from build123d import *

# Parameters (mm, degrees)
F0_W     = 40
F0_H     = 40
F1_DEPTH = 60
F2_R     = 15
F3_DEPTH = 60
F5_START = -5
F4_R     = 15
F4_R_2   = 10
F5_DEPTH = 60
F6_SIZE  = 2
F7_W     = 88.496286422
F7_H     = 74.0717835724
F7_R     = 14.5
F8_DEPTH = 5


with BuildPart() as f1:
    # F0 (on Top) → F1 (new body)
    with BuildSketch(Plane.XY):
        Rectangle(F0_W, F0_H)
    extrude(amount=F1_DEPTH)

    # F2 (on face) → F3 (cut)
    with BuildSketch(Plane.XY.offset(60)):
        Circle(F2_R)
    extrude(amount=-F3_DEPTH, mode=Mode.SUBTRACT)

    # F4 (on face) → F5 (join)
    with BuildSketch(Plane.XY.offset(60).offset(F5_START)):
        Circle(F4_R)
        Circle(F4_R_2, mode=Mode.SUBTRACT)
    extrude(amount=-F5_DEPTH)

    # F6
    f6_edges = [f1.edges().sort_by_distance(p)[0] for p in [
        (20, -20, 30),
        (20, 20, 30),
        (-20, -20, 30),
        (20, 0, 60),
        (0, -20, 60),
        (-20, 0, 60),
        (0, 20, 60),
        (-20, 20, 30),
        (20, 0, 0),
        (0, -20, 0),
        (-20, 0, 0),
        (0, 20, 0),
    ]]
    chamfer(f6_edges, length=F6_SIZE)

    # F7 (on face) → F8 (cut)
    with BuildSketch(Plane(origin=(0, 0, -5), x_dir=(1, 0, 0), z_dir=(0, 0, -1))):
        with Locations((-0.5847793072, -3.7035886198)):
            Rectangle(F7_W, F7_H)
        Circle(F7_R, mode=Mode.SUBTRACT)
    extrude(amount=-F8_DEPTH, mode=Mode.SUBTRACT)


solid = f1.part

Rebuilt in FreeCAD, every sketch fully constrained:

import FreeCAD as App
import Part
import Sketcher

V = App.Vector


def edges_at(feature, points):
    """Names of the edges that pass closest to the given points."""
    edges = feature.Shape.Edges
    near = lambda p: min(range(len(edges)), key=lambda i: edges[i].distToShape(Part.Vertex(*p))[0])
    return sorted({f"Edge{near(p) + 1}" for p in points})

doc = App.newDocument("Part")
body = doc.addObject("PartDesign::Body", "Body")

# Sketch on XY plane
sketch1 = body.newObject("Sketcher::SketchObject", "Sketch")
sketch1.AttachmentSupport = (doc.getObject("XY_Plane"), [""])
sketch1.MapMode = "FlatFace"
sketch1.addGeometry([
    Part.LineSegment(V(-20, 20, 0), V(-20, -20, 0)),
    Part.LineSegment(V(-20, -20, 0), V(20, -20, 0)),
    Part.LineSegment(V(20, -20, 0), V(20, 20, 0)),
    Part.LineSegment(V(20, 20, 0), V(-20, 20, 0)),
], False)
sketch1.addConstraint([
    Sketcher.Constraint("Coincident", 0, 2, 1, 1),
    Sketcher.Constraint("Coincident", 1, 2, 2, 1),
    Sketcher.Constraint("Coincident", 2, 2, 3, 1),
    Sketcher.Constraint("Coincident", 3, 2, 0, 1),
    Sketcher.Constraint("Vertical", 0),
    Sketcher.Constraint("Horizontal", 1),
    Sketcher.Constraint("Vertical", 2),
    Sketcher.Constraint("Horizontal", 3),
    Sketcher.Constraint("Symmetric", 0, 2, 2, 2, -1, 1),
    Sketcher.Constraint("Equal", 3, 0),
    Sketcher.Constraint("DistanceX", 1, 1, 1, 2, 40.0),
])
pad1 = body.newObject("PartDesign::Pad", "Pad")
pad1.Profile = sketch1
pad1.Length = 60

# Sketch on XY plane
sketch2 = body.newObject("Sketcher::SketchObject", "Sketch001")
sketch2.AttachmentSupport = (doc.getObject("XY_Plane"), [""])
sketch2.MapMode = "FlatFace"
sketch2.AttachmentOffset = App.Placement(V(0, 0, 60), App.Rotation())
sketch2.addGeometry(Part.Circle(V(0, 0, 0), V(0, 0, 1), 15), False)
sketch2.addConstraint([
    Sketcher.Constraint("Coincident", 0, 3, -1, 1),
    Sketcher.Constraint("Diameter", 0, 30.0),
])
pocket1 = body.newObject("PartDesign::Pocket", "Pocket")
pocket1.Profile = sketch2
pocket1.Length = 60

# Sketch on XY plane
sketch3 = body.newObject("Sketcher::SketchObject", "Sketch002")
sketch3.AttachmentSupport = (doc.getObject("XY_Plane"), [""])
sketch3.MapMode = "FlatFace"
sketch3.AttachmentOffset = App.Placement(V(0, 0, 55), App.Rotation())
sketch3.addGeometry([
    Part.Circle(V(0, 0, 0), V(0, 0, 1), 15),
    Part.Circle(V(0, 0, 0), V(0, 0, 1), 10),
], False)
sketch3.addConstraint([
    Sketcher.Constraint("Coincident", 0, 3, -1, 1),
    Sketcher.Constraint("Coincident", 1, 3, -1, 1),
    Sketcher.Constraint("Diameter", 0, 30.0),
    Sketcher.Constraint("Diameter", 1, 20.0),
])
pad2 = body.newObject("PartDesign::Pad", "Pad001")
pad2.Profile = sketch3
pad2.Length = 60
pad2.Reversed = True
doc.recompute()

chamfer = body.newObject("PartDesign::Chamfer", "Chamfer")
chamfer.Base = (pad2, edges_at(pad2, [
    (20, -20, 30),
    (20, 20, 30),
    (-20, -20, 30),
    (20, 0, 60),
    (0, -20, 60),
    (-20, 0, 60),
    (0, 20, 60),
    (-20, 20, 30),
    (20, 0, 0),
    (0, -20, 0),
    (-20, 0, 0),
    (0, 20, 0),
]))
chamfer.Size = 2

# Sketch on XY plane
sketch4 = body.newObject("Sketcher::SketchObject", "Sketch003")
sketch4.AttachmentSupport = (doc.getObject("XY_Plane"), [""])
sketch4.MapMode = "FlatFace"
sketch4.AttachmentOffset = App.Placement(V(0, 0, -5), App.Rotation())
sketch4.addGeometry([
    Part.LineSegment(V(-45, -33, 0), V(-45, 41, 0)),  # 0
    Part.LineSegment(V(-45, 41, 0), V(44, 41, 0)),  # 1
    Part.LineSegment(V(44, 41, 0), V(44, -33, 0)),  # 2
    Part.LineSegment(V(44, -33, 0), V(-45, -33, 0)),  # 3
    Part.Circle(V(0, 0, 0), V(0, 0, 1), 14),  # 4
], False)
sketch4.addConstraint([
    Sketcher.Constraint("Coincident", 0, 2, 1, 1),
    Sketcher.Constraint("Coincident", 1, 2, 2, 1),
    Sketcher.Constraint("Coincident", 2, 2, 3, 1),
    Sketcher.Constraint("Coincident", 3, 2, 0, 1),
    Sketcher.Constraint("Vertical", 0),
    Sketcher.Constraint("Horizontal", 1),
    Sketcher.Constraint("Vertical", 2),
    Sketcher.Constraint("Horizontal", 3),
    Sketcher.Constraint("Coincident", 4, 3, -1, 1),
    Sketcher.Constraint("Diameter", 4, 29.0),
    Sketcher.Constraint("DistanceX", 1, 1, 1, 2, 88.496286),
    Sketcher.Constraint("DistanceY", 0, 1, 0, 2, 74.071784),
    Sketcher.Constraint("DistanceY", -1, 1, 0, 2, 40.73948),
    Sketcher.Constraint("DistanceX", 0, 2, -1, 1, 44.832923),
])
pocket2 = body.newObject("PartDesign::Pocket", "Pocket001")
pocket2.Profile = sketch4
pocket2.Length = 5
pocket2.Reversed = True

doc.recompute()
